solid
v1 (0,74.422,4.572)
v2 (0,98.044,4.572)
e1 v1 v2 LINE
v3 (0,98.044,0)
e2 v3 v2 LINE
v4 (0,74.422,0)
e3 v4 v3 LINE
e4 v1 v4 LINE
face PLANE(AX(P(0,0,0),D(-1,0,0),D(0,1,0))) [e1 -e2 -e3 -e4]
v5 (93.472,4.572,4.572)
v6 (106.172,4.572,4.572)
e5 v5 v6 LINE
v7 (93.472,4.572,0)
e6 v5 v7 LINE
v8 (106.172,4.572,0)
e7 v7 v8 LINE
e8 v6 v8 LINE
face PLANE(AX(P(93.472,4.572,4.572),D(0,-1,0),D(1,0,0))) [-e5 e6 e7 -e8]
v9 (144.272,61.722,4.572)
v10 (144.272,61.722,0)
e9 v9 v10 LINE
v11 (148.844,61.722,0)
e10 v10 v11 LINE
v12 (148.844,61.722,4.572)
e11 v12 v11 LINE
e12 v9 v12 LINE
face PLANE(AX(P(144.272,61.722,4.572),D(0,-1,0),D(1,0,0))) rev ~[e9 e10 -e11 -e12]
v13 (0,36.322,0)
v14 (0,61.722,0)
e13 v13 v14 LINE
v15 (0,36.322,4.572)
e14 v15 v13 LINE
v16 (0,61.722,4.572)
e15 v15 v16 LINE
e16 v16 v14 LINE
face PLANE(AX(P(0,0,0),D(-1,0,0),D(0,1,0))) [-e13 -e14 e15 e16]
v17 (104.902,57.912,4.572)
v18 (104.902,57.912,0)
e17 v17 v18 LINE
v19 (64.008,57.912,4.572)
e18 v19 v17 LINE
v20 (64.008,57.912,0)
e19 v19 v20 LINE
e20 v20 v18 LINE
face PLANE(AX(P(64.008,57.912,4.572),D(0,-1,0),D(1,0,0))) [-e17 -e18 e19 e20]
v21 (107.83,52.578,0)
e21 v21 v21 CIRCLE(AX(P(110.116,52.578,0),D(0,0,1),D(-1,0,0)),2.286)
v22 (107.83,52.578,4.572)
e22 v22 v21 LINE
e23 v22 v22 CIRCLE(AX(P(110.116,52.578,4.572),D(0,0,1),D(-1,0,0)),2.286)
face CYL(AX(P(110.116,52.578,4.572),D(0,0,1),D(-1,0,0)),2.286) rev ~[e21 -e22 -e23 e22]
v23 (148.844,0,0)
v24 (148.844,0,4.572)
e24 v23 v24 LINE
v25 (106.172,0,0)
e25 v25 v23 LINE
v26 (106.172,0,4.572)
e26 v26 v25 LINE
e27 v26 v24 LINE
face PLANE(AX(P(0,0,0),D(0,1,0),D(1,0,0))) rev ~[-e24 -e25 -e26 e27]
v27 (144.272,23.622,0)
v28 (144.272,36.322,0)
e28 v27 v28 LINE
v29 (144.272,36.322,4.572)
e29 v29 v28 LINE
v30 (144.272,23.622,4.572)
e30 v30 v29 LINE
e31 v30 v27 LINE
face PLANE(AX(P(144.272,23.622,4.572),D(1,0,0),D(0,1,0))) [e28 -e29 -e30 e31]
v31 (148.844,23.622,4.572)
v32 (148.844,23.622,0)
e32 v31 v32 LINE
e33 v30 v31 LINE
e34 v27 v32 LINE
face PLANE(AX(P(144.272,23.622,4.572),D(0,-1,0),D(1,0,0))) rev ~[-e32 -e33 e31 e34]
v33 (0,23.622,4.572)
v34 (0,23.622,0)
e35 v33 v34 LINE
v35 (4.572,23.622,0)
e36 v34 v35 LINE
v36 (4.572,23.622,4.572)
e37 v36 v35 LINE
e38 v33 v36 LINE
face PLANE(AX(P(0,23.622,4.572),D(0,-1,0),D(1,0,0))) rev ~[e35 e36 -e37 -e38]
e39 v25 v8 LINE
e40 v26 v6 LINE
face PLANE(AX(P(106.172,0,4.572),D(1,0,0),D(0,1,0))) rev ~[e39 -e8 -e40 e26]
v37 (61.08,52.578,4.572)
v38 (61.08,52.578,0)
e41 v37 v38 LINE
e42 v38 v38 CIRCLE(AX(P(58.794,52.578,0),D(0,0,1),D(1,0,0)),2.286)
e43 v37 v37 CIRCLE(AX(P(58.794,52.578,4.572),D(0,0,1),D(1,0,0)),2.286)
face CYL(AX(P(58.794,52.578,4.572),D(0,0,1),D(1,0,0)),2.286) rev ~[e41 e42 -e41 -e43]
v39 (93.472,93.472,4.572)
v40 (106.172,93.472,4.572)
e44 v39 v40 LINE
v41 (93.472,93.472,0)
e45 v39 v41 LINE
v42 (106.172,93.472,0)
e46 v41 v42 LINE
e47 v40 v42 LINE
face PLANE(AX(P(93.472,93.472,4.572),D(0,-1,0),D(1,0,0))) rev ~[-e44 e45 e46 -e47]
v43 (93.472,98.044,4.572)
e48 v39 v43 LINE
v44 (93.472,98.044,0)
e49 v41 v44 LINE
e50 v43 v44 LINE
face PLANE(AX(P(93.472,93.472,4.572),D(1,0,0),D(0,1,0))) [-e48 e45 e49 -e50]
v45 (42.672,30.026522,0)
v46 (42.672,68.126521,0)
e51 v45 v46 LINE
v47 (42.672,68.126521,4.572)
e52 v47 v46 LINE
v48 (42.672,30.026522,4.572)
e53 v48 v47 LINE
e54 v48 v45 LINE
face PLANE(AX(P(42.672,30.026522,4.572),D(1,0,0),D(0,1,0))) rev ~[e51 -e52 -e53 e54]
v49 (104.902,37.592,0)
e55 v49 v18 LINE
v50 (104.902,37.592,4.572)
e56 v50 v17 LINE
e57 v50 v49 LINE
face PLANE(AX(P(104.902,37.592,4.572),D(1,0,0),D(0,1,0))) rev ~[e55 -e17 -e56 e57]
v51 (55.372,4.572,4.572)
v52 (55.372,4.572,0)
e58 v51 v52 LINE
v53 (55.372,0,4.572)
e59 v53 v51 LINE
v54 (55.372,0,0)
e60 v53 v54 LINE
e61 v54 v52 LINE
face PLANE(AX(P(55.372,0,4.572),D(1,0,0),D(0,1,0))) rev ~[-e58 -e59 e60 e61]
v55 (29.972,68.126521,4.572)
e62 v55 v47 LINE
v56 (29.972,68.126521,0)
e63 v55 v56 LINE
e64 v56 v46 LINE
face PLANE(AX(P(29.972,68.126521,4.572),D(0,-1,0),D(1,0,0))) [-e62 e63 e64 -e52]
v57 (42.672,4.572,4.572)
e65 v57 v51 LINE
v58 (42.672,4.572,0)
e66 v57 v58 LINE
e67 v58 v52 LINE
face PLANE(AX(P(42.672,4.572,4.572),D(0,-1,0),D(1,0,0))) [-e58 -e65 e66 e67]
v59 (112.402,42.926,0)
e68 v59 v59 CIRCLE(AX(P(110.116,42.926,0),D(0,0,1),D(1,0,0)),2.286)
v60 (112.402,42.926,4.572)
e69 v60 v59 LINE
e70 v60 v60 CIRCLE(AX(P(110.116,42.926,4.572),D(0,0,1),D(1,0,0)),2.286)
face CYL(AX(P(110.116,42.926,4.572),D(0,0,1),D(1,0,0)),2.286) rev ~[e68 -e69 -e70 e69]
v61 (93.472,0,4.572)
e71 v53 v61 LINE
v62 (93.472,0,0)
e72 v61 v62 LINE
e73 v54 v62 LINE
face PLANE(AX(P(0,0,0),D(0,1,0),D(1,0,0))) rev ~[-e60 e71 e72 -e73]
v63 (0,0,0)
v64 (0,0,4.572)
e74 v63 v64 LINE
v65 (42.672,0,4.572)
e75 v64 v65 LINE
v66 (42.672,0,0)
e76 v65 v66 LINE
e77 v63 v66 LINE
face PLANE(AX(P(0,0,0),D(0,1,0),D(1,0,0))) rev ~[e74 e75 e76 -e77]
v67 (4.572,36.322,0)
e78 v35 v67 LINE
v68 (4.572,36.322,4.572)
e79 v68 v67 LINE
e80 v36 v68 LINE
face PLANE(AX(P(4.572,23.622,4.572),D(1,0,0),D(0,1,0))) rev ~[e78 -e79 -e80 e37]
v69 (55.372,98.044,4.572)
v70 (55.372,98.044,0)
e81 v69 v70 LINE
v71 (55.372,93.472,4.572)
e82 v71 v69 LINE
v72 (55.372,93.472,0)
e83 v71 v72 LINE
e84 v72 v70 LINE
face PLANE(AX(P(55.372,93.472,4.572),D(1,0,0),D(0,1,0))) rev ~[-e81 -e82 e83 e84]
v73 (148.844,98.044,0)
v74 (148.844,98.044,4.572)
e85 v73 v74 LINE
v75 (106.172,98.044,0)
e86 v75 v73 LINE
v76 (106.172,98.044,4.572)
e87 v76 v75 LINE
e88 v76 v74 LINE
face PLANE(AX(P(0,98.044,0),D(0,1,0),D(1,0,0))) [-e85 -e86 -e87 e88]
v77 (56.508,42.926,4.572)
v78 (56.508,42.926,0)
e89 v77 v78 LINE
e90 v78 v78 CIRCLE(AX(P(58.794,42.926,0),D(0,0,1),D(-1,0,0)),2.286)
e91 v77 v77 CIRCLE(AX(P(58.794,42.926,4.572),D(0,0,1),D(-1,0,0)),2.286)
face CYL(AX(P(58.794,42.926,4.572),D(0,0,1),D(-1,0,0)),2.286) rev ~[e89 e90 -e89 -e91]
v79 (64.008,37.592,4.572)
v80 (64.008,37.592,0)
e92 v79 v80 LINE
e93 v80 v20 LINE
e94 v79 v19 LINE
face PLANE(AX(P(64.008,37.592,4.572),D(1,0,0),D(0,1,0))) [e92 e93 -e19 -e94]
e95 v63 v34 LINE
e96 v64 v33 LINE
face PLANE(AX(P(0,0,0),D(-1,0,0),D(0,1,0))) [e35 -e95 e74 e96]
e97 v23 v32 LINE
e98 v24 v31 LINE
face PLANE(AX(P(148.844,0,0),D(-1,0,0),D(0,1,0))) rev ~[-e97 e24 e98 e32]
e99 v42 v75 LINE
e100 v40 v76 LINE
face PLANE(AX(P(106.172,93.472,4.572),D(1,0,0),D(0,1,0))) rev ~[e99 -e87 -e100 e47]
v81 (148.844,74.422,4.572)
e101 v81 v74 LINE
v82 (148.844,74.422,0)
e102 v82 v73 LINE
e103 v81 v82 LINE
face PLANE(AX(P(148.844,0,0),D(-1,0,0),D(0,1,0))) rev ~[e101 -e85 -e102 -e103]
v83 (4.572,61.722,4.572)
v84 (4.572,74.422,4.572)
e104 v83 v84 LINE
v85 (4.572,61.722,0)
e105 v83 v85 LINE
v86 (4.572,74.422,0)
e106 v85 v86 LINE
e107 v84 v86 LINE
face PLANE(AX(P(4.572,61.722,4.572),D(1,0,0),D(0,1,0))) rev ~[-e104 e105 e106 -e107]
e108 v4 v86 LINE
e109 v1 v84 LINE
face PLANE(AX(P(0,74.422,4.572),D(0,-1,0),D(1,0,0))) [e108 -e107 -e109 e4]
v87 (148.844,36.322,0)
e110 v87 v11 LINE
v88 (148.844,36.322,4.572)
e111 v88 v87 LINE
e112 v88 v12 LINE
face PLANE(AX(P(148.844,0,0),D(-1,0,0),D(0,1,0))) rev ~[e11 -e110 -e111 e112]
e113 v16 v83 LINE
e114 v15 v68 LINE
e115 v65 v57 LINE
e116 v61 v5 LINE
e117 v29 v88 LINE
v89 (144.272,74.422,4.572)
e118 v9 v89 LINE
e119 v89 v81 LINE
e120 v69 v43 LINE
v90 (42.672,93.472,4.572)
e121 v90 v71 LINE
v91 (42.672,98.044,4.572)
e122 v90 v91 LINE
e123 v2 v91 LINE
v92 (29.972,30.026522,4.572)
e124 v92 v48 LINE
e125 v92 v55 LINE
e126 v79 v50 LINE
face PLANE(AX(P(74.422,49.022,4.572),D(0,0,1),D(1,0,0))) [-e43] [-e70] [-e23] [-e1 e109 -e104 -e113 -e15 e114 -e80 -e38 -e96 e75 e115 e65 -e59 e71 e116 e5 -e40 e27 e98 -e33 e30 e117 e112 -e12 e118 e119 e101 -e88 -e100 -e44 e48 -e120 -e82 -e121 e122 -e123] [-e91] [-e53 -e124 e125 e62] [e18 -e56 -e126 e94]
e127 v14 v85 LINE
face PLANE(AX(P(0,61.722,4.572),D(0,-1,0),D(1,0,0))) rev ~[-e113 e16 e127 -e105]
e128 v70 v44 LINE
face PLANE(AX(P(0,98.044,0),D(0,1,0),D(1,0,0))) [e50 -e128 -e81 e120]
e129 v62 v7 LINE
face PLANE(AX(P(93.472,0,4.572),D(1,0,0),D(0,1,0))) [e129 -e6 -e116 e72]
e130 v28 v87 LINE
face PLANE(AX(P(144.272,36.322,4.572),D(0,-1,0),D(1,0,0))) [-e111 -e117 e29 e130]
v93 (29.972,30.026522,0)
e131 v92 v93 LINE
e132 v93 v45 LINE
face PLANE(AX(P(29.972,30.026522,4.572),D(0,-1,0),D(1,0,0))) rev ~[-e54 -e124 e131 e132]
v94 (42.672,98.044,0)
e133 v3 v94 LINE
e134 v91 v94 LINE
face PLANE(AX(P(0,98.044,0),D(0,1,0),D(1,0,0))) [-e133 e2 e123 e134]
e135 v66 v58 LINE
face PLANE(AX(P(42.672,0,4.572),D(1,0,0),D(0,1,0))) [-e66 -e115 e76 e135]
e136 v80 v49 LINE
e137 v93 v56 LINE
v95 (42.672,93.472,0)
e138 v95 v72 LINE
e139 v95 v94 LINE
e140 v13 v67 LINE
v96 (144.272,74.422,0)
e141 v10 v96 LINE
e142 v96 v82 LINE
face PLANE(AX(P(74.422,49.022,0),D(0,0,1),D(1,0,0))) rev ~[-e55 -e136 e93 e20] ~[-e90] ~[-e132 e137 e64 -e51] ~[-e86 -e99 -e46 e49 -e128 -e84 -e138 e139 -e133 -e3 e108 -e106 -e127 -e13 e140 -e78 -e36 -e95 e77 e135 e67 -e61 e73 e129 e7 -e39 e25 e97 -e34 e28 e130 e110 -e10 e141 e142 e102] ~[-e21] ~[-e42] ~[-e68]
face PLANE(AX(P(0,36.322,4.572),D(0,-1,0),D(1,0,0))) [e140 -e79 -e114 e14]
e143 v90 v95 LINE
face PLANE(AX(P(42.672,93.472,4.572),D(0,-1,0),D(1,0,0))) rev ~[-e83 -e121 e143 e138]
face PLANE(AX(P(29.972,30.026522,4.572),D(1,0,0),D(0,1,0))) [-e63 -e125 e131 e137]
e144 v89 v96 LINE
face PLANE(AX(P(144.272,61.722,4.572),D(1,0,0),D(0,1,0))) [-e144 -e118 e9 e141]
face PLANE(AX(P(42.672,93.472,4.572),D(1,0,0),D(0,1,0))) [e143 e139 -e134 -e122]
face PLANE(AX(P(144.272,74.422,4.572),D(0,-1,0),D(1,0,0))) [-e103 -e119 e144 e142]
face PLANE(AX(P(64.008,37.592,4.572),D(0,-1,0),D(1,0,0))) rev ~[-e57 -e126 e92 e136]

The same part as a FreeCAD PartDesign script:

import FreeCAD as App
import Part
import Sketcher

V = App.Vector
Q = App.Units.Quantity


def add_polygon(sketch, points):
    """Adds a closed chain of lines whose ends are joined by coincident constraints."""
    first, n = sketch.GeometryCount, len(points)
    for a, b in zip(points, points[1:] + points[:1]):
        sketch.addGeometry(Part.LineSegment(App.Vector(*a, 0), App.Vector(*b, 0)), False)
    for i in range(n):
        sketch.addConstraint(Sketcher.Constraint("Coincident", first + i, 2, first + (i + 1) % n, 1))

doc = App.newDocument("Part")
body = doc.addObject("PartDesign::Body", "Body")

# Sketch on XY plane
sketch1 = body.newObject("Sketcher::SketchObject", "Sketch")
sketch1.AttachmentSupport = (doc.getObject("XY_Plane"), [""])
sketch1.MapMode = "FlatFace"
add_polygon(sketch1, [(0, 98.044), (0, 0), (148.844, 0), (148.844, 98.044)])  # lines 0-3
sketch1.addConstraint([
    Sketcher.Constraint("Vertical", 0),
    Sketcher.Constraint("Horizontal", 1),
    Sketcher.Constraint("Vertical", 2),
    Sketcher.Constraint("Horizontal", 3),
    Sketcher.Constraint("Coincident", 0, 2, -1, 1),
    Sketcher.Constraint("DistanceX", 1, 1, 1, 2, Q("5.86 in")),
    Sketcher.Constraint("DistanceY", 0, 2, 0, 1, Q("3.86 in")),
])
pad1 = body.newObject("PartDesign::Pad", "Pad")
pad1.Profile = sketch1
pad1.Length = Q("0.18 in")

# Sketch on XY plane
sketch2 = body.newObject("Sketcher::SketchObject", "Sketch001")
sketch2.AttachmentSupport = (doc.getObject("XY_Plane"), [""])
sketch2.MapMode = "FlatFace"
sketch2.AttachmentOffset = App.Placement(V(0, 0, 0.18 * 25.4), App.Rotation())
add_polygon(sketch2, [(42.672, 4.572), (42.672, 0), (55.372, 0), (55.372, 4.572)])  # lines 0-3
add_polygon(sketch2, [(93.472, 4.572), (93.472, 0), (106.172, 0), (106.172, 4.572)])  # lines 4-7
add_polygon(sketch2, [(0, 36.322), (0, 23.622), (4.572, 23.622), (4.572, 36.322)])  # lines 8-11
add_polygon(sketch2, [(0, 74.422), (0, 61.722), (4.572, 61.722), (4.572, 74.422)])  # lines 12-15
add_polygon(sketch2, [(42.672, 98.044), (42.672, 93.472), (55.372, 93.472), (55.372, 98.044)])  # lines 16-19
add_polygon(sketch2, [(93.472, 98.044), (93.472, 93.472), (106.172, 93.472), (106.172, 98.044)])  # lines 20-23
add_polygon(sketch2, [(144.272, 74.422), (144.272, 61.722), (148.844, 61.722), (148.844, 74.422)])  # lines 24-27
add_polygon(sketch2, [(144.272, 36.322), (144.272, 23.622), (148.844, 23.622), (148.844, 36.322)])  # lines 28-31
sketch2.addConstraint([
    Sketcher.Constraint("Vertical", 0),
    Sketcher.Constraint("Horizontal", 1),
    Sketcher.Constraint("Vertical", 2),
    Sketcher.Constraint("Horizontal", 3),
    Sketcher.Constraint("Vertical", 4),
    Sketcher.Constraint("Horizontal", 5),
    Sketcher.Constraint("Vertical", 6),
    Sketcher.Constraint("Horizontal", 7),
    Sketcher.Constraint("Vertical", 8),
    Sketcher.Constraint("Horizontal", 9),
    Sketcher.Constraint("Vertical", 10),
    Sketcher.Constraint("Horizontal", 11),
    Sketcher.Constraint("Vertical", 12),
    Sketcher.Constraint("Horizontal", 13),
    Sketcher.Constraint("Vertical", 14),
    Sketcher.Constraint("Horizontal", 15),
    Sketcher.Constraint("Vertical", 16),
    Sketcher.Constraint("Horizontal", 17),
    Sketcher.Constraint("Vertical", 18),
    Sketcher.Constraint("Horizontal", 19),
    Sketcher.Constraint("Vertical", 20),
    Sketcher.Constraint("Horizontal", 21),
    Sketcher.Constraint("Vertical", 22),
    Sketcher.Constraint("Horizontal", 23),
    Sketcher.Constraint("Vertical", 24),
    Sketcher.Constraint("Horizontal", 25),
    Sketcher.Constraint("Vertical", 26),
    Sketcher.Constraint("Horizontal", 27),
    Sketcher.Constraint("Vertical", 28),
    Sketcher.Constraint("Horizontal", 29),
    Sketcher.Constraint("Vertical", 30),
    Sketcher.Constraint("Horizontal", 31),
    Sketcher.Constraint("PointOnObject", 0, 2, -1),
    Sketcher.Constraint("PointOnObject", 4, 2, -1),
    Sketcher.Constraint("PointOnObject", 8, 2, -2),
    Sketcher.Constraint("PointOnObject", 12, 2, -2),
    Sketcher.Constraint("Horizontal", 3, 2, 6, 2),
    Sketcher.Constraint("Horizontal", 17, 2, 20, 2),
    Sketcher.Constraint("Horizontal", 19, 2, 22, 2),
    Sketcher.Constraint("Horizontal", 13, 2, 24, 2),
    Sketcher.Constraint("Horizontal", 15, 2, 26, 2),
    Sketcher.Constraint("Horizontal", 9, 2, 28, 2),
    Sketcher.Constraint("Horizontal", 11, 2, 30, 2),
    Sketcher.Constraint("Vertical", 10, 2, 13, 2),
    Sketcher.Constraint("Vertical", 3, 2, 16, 2),
    Sketcher.Constraint("Vertical", 2, 2, 17, 2),
    Sketcher.Constraint("Vertical", 7, 2, 20, 2),
    Sketcher.Constraint("Vertical", 6, 2, 21, 2),
    Sketcher.Constraint("Vertical", 27, 2, 28, 2),
    Sketcher.Constraint("Vertical", 26, 2, 29, 2),
    Sketcher.Constraint("Equal", 3, 5),
    Sketcher.Constraint("Equal", 15, 25),
    Sketcher.Constraint("Equal", 31, 0),
    Sketcher.Constraint("Equal", 23, 8),
    Sketcher.Constraint("Equal", 10, 12),
    Sketcher.Constraint("Equal", 6, 16),
    Sketcher.Constraint("DistanceX", 1, 1, 1, 2, Q("0.5 in")),
    Sketcher.Constraint("DistanceX", 0, 2, 4, 2, Q("2 in")),
    Sketcher.Constraint("DistanceX", 9, 2, 2, 2, Q("2 in")),
    Sketcher.Constraint("DistanceY", 11, 2, 12, 2, Q("1 in")),
    Sketcher.Constraint("DistanceX", 20, 2, 24, 2, Q("2 in")),
    Sketcher.Constraint("DistanceX", 9, 1, 9, 2, Q("0.18 in")),
    Sketcher.Constraint("DistanceY", 7, 2, 20, 2, Q("3.5 in")),
    Sketcher.Constraint("DistanceY", -1, 1, 8, 2, Q("0.93 in")),
])
pocket1 = body.newObject("PartDesign::Pocket", "Pocket")
pocket1.Profile = sketch2
pocket1.Length = Q("0.18 in")

# Sketch on XY plane
sketch3 = body.newObject("Sketcher::SketchObject", "Sketch002")
sketch3.AttachmentSupport = (doc.getObject("XY_Plane"), [""])
sketch3.MapMode = "FlatFace"
sketch3.AttachmentOffset = App.Placement(V(0, 0, 0.18 * 25.4), App.Rotation())
sketch3.addGeometry(Part.Circle(V(58.794, 52.578, 0), V(0, 0, 1), 2.286), False)  # 0
sketch3.addGeometry(Part.Circle(V(110.116, 52.578, 0), V(0, 0, 1), 2.286), False)  # 1
sketch3.addGeometry(Part.Circle(V(110.116, 42.926, 0), V(0, 0, 1), 2.286), False)  # 2
sketch3.addGeometry(Part.Circle(V(58.794, 42.926, 0), V(0, 0, 1), 2.286), False)  # 3
add_polygon(sketch3, [(64.008, 57.912), (64.008, 37.592), (104.902, 37.592), (104.902, 57.912)])  # lines 4-7
sketch3.addConstraint([
    Sketcher.Constraint("Vertical", 4),
    Sketcher.Constraint("Horizontal", 5),
    Sketcher.Constraint("Vertical", 6),
    Sketcher.Constraint("Horizontal", 7),
    Sketcher.Constraint("Equal", 0, 1),
    Sketcher.Constraint("Equal", 1, 2),
    Sketcher.Constraint("Equal", 2, 3),
    Sketcher.Constraint("Horizontal", 0, 3, 1, 3),
    Sketcher.Constraint("Horizontal", 2, 3, 3, 3),
    Sketcher.Constraint("Vertical", 1, 3, 2, 3),
    Sketcher.Constraint("Vertical", 0, 3, 3, 3),
    Sketcher.Constraint("Diameter", 0, Q("0.18 in")),
    Sketcher.Constraint("DistanceY", 4, 2, 4, 1, Q("0.8 in")),
    Sketcher.Constraint("DistanceX", 5, 1, 5, 2, Q("1.61 in")),
    Sketcher.Constraint("DistanceY", -1, 1, 0, 3, Q("2.07 in")),
    Sketcher.Constraint("DistanceY", -1, 1, 2, 3, Q("1.69 in")),
    Sketcher.Constraint("DistanceX", -1, 1, 4, 2, Q("2.52 in")),
    Sketcher.Constraint("DistanceY", -1, 1, 4, 2, Q("1.48 in")),
    Sketcher.Constraint("DistanceX", -1, 1, 0, 3, 58.794),
    Sketcher.Constraint("DistanceX", -1, 1, 1, 3, 110.116),
])
pocket2 = body.newObject("PartDesign::Pocket", "Pocket001")
pocket2.Profile = sketch3
pocket2.Type = "ThroughAll"

# Sketch on XY plane
sketch4 = body.newObject("Sketcher::SketchObject", "Sketch003")
sketch4.AttachmentSupport = (doc.getObject("XY_Plane"), [""])
sketch4.MapMode = "FlatFace"
sketch4.AttachmentOffset = App.Placement(V(0, 0, 0.18 * 25.4), App.Rotation())
add_polygon(sketch4, [(29.972, 68.126521), (29.972, 30.026522), (42.672, 30.026522), (42.672, 68.126521)])  # lines 0-3
sketch4.addConstraint([
    Sketcher.Constraint("Vertical", 0),
    Sketcher.Constraint("Horizontal", 1),
    Sketcher.Constraint("Vertical", 2),
    Sketcher.Constraint("Horizontal", 3),
    Sketcher.Constraint("DistanceX", 1, 1, 1, 2, Q("0.5 in")),
    Sketcher.Constraint("DistanceY", 0, 2, 0, 1, Q("1.5 in")),
    Sketcher.Constraint("DistanceX", -1, 1, 0, 2, Q("1.18 in")),
    Sketcher.Constraint("DistanceY", -1, 1, 0, 2, 30.026522),
])
pocket3 = body.newObject("PartDesign::Pocket", "Pocket002")
pocket3.Profile = sketch4
pocket3.Length = Q("0.18 in")

doc.recompute()
